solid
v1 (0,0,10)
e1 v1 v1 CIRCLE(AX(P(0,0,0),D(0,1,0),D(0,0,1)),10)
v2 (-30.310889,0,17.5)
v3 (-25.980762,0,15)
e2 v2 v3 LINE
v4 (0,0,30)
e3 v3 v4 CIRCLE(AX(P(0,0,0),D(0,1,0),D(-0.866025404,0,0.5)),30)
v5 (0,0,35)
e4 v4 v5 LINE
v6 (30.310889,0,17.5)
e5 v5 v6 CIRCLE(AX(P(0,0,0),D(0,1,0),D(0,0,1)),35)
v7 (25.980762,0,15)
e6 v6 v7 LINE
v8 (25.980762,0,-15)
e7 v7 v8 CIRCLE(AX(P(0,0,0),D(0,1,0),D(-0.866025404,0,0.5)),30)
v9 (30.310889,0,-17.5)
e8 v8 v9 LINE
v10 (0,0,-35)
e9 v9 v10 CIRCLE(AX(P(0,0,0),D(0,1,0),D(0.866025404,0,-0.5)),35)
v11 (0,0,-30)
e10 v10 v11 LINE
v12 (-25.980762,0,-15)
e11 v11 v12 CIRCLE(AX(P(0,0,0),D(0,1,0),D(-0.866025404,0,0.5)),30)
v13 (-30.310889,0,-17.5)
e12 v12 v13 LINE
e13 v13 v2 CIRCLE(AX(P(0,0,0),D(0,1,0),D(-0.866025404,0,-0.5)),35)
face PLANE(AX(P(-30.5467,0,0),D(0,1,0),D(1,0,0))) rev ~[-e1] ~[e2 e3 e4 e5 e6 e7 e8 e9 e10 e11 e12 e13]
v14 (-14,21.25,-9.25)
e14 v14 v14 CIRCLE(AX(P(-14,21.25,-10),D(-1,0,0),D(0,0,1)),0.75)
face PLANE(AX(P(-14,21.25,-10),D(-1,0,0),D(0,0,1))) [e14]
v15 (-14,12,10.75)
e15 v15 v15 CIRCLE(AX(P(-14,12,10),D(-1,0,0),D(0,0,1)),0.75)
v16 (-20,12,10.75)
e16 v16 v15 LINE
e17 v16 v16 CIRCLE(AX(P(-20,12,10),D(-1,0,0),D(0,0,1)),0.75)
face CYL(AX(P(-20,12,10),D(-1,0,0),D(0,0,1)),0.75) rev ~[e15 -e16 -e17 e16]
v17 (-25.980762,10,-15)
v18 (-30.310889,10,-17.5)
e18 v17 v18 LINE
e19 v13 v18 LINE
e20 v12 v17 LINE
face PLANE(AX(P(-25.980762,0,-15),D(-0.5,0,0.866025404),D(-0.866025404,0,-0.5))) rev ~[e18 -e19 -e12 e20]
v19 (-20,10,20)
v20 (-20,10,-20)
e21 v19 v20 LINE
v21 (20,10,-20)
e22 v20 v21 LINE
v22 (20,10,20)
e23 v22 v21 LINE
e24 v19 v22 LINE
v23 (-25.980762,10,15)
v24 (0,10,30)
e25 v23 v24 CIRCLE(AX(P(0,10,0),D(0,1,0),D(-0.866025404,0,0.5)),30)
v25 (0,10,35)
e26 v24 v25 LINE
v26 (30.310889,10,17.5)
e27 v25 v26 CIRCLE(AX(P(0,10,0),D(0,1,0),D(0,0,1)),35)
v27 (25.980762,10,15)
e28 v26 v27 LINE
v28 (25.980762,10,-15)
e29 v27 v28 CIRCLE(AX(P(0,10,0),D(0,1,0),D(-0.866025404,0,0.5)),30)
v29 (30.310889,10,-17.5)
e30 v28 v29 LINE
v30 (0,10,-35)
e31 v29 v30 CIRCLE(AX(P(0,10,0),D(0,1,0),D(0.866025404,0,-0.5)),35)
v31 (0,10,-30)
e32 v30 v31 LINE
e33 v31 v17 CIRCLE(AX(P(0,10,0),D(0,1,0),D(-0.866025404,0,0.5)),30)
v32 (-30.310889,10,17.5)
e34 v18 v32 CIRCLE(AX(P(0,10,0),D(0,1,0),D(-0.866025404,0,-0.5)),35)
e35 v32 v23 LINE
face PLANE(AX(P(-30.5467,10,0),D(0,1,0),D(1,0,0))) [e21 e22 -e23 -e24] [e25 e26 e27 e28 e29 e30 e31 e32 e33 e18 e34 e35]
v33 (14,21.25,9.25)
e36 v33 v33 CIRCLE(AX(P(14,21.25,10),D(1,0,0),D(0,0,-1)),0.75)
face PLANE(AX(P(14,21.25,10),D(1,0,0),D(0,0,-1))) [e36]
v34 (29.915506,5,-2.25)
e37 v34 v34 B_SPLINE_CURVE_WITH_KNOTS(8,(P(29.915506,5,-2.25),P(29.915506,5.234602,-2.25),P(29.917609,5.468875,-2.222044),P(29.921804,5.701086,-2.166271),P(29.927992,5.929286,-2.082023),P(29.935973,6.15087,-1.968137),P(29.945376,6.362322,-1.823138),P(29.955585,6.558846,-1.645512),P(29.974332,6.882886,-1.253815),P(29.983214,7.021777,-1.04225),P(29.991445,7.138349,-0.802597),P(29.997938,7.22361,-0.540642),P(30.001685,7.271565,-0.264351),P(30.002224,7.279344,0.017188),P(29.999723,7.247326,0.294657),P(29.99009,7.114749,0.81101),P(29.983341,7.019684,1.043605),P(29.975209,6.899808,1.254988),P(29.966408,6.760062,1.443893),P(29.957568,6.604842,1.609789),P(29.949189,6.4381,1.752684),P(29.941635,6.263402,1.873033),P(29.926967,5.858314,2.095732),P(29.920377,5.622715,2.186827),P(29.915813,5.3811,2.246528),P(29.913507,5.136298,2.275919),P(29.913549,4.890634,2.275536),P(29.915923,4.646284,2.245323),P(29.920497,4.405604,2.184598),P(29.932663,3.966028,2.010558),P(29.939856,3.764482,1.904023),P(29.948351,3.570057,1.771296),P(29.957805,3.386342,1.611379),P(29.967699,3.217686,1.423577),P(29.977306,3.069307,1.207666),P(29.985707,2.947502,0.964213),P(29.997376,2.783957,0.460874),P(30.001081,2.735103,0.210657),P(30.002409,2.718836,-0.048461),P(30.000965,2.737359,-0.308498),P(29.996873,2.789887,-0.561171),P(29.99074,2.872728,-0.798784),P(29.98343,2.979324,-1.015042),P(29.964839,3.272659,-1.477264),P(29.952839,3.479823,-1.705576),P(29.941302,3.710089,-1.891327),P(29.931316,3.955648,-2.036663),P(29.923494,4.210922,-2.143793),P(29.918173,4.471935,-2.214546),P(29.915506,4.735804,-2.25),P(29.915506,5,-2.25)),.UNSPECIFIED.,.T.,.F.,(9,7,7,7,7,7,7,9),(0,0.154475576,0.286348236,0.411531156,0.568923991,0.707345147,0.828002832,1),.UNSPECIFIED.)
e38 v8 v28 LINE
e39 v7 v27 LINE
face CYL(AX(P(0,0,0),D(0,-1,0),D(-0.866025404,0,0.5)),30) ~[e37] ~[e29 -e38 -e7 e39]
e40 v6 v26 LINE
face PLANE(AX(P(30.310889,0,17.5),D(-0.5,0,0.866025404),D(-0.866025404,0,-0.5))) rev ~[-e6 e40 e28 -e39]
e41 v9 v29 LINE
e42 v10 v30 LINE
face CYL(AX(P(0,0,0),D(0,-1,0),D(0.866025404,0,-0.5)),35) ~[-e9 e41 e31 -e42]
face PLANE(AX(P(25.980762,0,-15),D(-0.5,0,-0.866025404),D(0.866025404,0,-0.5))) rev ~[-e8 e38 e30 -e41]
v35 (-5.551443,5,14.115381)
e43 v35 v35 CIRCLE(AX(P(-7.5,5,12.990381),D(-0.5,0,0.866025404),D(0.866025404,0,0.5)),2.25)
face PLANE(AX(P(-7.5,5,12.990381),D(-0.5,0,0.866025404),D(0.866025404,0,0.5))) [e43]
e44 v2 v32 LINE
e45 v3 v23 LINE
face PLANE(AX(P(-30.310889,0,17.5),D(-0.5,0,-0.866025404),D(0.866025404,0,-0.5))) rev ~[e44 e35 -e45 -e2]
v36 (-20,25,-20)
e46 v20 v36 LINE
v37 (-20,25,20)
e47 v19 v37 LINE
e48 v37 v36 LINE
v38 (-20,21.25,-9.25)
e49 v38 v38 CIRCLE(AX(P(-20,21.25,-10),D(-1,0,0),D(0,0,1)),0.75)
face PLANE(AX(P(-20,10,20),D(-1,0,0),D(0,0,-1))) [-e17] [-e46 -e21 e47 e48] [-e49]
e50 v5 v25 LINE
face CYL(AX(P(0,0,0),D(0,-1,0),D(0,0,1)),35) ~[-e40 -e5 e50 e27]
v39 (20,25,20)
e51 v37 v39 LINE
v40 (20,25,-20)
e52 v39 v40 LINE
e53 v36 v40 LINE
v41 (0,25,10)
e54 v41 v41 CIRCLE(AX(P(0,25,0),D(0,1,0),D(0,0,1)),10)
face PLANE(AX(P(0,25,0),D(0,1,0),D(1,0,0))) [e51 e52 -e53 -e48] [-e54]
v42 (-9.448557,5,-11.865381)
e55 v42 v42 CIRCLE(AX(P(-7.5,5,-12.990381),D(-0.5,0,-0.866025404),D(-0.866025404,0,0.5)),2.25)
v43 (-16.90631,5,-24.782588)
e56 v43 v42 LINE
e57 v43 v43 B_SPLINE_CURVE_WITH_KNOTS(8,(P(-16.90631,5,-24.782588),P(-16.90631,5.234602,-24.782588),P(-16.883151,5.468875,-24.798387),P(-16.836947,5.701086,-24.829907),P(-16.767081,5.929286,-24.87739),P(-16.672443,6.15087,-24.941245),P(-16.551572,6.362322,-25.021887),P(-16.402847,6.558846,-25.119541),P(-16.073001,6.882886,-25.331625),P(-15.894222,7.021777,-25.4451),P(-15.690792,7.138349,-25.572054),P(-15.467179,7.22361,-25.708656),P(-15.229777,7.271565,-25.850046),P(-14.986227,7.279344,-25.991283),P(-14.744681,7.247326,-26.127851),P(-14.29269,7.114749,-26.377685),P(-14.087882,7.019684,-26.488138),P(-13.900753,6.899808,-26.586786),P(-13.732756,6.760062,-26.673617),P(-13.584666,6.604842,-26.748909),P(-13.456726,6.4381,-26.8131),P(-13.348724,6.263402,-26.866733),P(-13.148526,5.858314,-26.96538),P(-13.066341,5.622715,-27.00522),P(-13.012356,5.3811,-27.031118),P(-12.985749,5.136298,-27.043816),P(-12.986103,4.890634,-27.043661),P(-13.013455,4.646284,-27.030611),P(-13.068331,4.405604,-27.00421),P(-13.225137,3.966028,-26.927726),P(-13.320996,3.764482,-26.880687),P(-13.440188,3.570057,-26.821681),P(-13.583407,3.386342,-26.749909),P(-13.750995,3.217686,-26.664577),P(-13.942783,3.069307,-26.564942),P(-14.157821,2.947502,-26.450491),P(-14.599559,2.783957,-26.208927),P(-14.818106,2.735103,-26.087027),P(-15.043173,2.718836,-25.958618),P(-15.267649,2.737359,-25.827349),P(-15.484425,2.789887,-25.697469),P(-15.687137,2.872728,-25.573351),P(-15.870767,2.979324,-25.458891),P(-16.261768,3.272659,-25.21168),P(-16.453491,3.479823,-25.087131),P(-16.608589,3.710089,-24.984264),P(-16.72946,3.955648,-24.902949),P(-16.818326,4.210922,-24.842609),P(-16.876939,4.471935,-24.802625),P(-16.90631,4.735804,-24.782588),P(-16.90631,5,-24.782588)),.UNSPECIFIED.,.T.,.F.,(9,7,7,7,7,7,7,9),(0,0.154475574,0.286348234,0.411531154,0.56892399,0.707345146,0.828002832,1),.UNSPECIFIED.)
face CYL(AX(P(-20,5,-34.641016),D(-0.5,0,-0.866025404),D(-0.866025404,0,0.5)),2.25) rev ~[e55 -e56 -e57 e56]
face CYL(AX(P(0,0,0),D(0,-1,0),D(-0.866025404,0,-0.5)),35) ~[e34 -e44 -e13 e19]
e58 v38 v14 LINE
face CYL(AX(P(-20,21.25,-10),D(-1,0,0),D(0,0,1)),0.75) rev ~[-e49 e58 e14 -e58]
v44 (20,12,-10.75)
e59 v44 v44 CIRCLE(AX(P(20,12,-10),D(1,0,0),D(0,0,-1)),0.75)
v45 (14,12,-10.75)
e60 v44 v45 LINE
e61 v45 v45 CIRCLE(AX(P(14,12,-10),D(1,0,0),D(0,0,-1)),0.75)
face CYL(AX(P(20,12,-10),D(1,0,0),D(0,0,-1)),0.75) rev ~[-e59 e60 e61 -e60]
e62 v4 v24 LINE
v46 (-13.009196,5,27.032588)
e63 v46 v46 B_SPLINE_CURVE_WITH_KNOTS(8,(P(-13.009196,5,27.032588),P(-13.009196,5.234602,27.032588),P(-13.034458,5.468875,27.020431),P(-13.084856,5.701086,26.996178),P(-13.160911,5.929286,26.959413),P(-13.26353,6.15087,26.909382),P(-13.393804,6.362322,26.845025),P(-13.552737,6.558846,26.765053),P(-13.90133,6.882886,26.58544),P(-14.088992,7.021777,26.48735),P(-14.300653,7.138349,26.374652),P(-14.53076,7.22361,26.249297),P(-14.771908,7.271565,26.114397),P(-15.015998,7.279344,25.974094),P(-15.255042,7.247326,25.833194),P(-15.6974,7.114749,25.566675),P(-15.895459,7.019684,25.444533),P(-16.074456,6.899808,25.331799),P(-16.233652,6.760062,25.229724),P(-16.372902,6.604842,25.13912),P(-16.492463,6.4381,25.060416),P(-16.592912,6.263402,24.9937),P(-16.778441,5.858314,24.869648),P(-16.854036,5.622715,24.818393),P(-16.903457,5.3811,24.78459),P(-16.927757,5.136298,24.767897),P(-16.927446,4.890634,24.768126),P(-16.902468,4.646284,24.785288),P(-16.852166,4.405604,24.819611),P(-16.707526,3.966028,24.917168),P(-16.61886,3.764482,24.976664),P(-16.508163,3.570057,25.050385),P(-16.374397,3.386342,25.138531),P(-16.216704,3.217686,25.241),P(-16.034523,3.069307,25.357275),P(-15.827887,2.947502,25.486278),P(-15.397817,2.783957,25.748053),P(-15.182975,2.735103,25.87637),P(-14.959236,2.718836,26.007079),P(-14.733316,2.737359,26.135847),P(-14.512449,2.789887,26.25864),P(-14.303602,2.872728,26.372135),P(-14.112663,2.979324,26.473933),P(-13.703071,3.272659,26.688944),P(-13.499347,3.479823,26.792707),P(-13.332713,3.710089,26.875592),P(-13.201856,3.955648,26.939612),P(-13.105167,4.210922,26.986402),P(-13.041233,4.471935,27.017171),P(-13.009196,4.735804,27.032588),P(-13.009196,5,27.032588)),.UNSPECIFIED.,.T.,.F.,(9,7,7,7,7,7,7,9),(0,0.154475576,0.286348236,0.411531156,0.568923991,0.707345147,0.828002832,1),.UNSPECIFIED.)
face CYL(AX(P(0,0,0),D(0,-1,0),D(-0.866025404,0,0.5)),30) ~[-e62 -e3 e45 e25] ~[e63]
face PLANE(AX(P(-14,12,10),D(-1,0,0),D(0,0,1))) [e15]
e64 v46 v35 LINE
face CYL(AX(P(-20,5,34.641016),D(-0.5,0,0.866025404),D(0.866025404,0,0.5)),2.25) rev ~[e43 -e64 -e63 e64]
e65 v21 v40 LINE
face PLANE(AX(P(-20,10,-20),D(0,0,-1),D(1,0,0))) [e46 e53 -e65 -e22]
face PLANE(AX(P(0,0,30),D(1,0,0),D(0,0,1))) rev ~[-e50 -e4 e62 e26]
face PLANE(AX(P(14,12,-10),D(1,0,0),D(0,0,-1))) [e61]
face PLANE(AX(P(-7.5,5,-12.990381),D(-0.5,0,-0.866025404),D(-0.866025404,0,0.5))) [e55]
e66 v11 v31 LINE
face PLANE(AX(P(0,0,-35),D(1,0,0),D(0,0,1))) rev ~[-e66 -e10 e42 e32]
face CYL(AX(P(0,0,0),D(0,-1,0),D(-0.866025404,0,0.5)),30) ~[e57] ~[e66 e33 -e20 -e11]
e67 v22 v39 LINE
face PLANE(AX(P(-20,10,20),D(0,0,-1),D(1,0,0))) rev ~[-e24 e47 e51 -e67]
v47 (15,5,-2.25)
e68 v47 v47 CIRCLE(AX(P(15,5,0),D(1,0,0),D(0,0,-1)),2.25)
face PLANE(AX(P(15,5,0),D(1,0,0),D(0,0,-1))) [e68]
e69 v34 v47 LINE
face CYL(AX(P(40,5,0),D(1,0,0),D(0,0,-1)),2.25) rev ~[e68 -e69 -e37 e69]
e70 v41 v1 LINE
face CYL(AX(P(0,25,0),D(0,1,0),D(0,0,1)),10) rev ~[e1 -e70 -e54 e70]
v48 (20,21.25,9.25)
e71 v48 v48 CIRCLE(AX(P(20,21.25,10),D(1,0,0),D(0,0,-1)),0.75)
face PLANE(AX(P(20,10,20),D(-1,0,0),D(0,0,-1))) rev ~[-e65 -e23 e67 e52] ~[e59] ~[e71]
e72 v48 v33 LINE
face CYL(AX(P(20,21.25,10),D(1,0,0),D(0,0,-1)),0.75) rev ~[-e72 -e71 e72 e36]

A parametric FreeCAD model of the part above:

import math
import FreeCAD as App
import Part
import Sketcher
from FreeCAD import Vector
Q = App.Units.Quantity


def add_polygon(sketch, points):
    """Adds a closed chain of lines whose ends are joined by coincident constraints."""
    first, n = sketch.GeometryCount, len(points)
    for a, b in zip(points, points[1:] + points[:1]):
        sketch.addGeometry(Part.LineSegment(App.Vector(*a, 0), App.Vector(*b, 0)), False)
    for i in range(n):
        sketch.addConstraint(Sketcher.Constraint("Coincident", first + i, 2, first + (i + 1) % n, 1))

doc = App.newDocument("Part")
body = doc.addObject("PartDesign::Body", "Body")

sketch1 = body.newObject("Sketcher::SketchObject", "Sketch")
sketch1.AttachmentSupport = (doc.getObject("XZ_Plane"), [""])
sketch1.MapMode = "FlatFace"
sketch1.addGeometry([
    Part.LineSegment(Vector(-25.980762, -15, 0), Vector(-30.310889, -17.5, 0)),
    Part.ArcOfCircle(Part.Circle(Vector(0, 0, 0), Vector(0, 0, 1), 35), math.radians(150), math.radians(210)),
    Part.LineSegment(Vector(-30.310889, 17.5, 0), Vector(-25.980762, 15, 0)),
    Part.ArcOfCircle(Part.Circle(Vector(0, 0, 0), Vector(0, 0, 1), 30), math.radians(90), math.radians(150)),
    Part.LineSegment(Vector(0, 30, 0), Vector(0, 35, 0)),
    Part.ArcOfCircle(Part.Circle(Vector(0, 0, 0), Vector(0, 0, 1), 35), math.radians(30), math.radians(90)),
    Part.LineSegment(Vector(30.310889, 17.5, 0), Vector(25.980762, 15, 0)),
    Part.ArcOfCircle(Part.Circle(Vector(0, 0, 0), Vector(0, 0, 1), 30), math.radians(-30), math.radians(30)),
    Part.LineSegment(Vector(25.980762, -15, 0), Vector(30.310889, -17.5, 0)),
    Part.ArcOfCircle(Part.Circle(Vector(0, 0, 0), Vector(0, 0, 1), 35), math.radians(-90), math.radians(-30)),
    Part.LineSegment(Vector(0, -35, 0), Vector(0, -30, 0)),
    Part.ArcOfCircle(Part.Circle(Vector(0, 0, 0), Vector(0, 0, 1), 30), math.radians(-150), math.radians(-90)),
], False)
sketch1.addConstraint([
    Sketcher.Constraint("Coincident", 0, 2, 1, 2),
    Sketcher.Constraint("Coincident", 1, 1, 2, 1),
    Sketcher.Constraint("Coincident", 2, 2, 3, 2),
    Sketcher.Constraint("Coincident", 3, 1, 4, 1),
    Sketcher.Constraint("Coincident", 4, 2, 5, 2),
    Sketcher.Constraint("Coincident", 5, 1, 6, 1),
    Sketcher.Constraint("Coincident", 6, 2, 7, 2),
    Sketcher.Constraint("Coincident", 7, 1, 8, 1),
    Sketcher.Constraint("Coincident", 8, 2, 9, 2),
    Sketcher.Constraint("Coincident", 9, 1, 10, 1),
    Sketcher.Constraint("Coincident", 10, 2, 11, 2),
    Sketcher.Constraint("Coincident", 11, 1, 0, 1),
    Sketcher.Constraint("Vertical", 4),
    Sketcher.Constraint("Vertical", 10),
    Sketcher.Constraint("Coincident", 1, 3, -1, 1),
    Sketcher.Constraint("Coincident", 3, 3, -1, 1),
    Sketcher.Constraint("Coincident", 5, 3, -1, 1),
    Sketcher.Constraint("Coincident", 7, 3, -1, 1),
    Sketcher.Constraint("Coincident", 9, 3, -1, 1),
    Sketcher.Constraint("Coincident", 11, 3, -1, 1),
    Sketcher.Constraint("Equal", 1, 5),
    Sketcher.Constraint("Equal", 3, 7),
    Sketcher.Constraint("Equal", 5, 9),
    Sketcher.Constraint("Equal", 7, 11),
    Sketcher.Constraint("PointOnObject", 3, 1, -2),
    Sketcher.Constraint("PointOnObject", 9, 1, -2),
    Sketcher.Constraint("Parallel", 0, 6),
    Sketcher.Constraint("Parallel", 2, 8),
    Sketcher.Constraint("Horizontal", 1, 1, 5, 1),
    Sketcher.Constraint("Horizontal", 2, 2, 6, 2),
    Sketcher.Constraint("Horizontal", 0, 2, 8, 2),
    Sketcher.Constraint("Vertical", 0, 2, 1, 1),
    Sketcher.Constraint("Radius", 1, 35.0),
    Sketcher.Constraint("Radius", 3, 30.0),
    Sketcher.Constraint("Angle", 0, Q("-150 deg")),
    Sketcher.Constraint("DistanceY", -1, 1, 2, 2, 15.0),
])
pad1 = body.newObject("PartDesign::Pad", "Pad")
pad1.Profile = sketch1
pad1.Length = 10
pad1.Reversed = True

sketch2 = body.newObject("Sketcher::SketchObject", "Sketch001")
sketch2.AttachmentSupport = (doc.getObject("YZ_Plane"), [""])
sketch2.MapMode = "FlatFace"
sketch2.AttachmentOffset = App.Placement(Vector(0, 0, 40), App.Rotation())
sketch2.addGeometry(Part.Circle(Vector(5, 0, 0), Vector(0, 0, 1), 2.25), False)
sketch2.addConstraint([
    Sketcher.Constraint("PointOnObject", 0, 3, -1),
    Sketcher.Constraint("Diameter", 0, 4.5),
    Sketcher.Constraint("DistanceX", -1, 1, 0, 3, 5.0),
])
pocket1 = body.newObject("PartDesign::Pocket", "Pocket")
pocket1.Profile = sketch2
pocket1.Length = 25
doc.recompute()

polarpattern = body.newObject("PartDesign::PolarPattern", "PolarPattern")
polarpattern.Originals = [pocket1]
polarpattern.Axis = (doc.getObject("Y_Axis"), [""])
polarpattern.Angle = 360
polarpattern.Occurrences = 3
body.Tip = polarpattern

sketch3 = body.newObject("Sketcher::SketchObject", "Sketch002")
sketch3.AttachmentSupport = (doc.getObject("XZ_Plane"), [""])
sketch3.MapMode = "FlatFace"
sketch3.AttachmentOffset = App.Placement(Vector(0, 0, -10), App.Rotation())
add_polygon(sketch3, [(-20, -20), (-20, 20), (20, 20), (20, -20)])
sketch3.addConstraint([
    Sketcher.Constraint("Vertical", 0),
    Sketcher.Constraint("Horizontal", 1),
    Sketcher.Constraint("Vertical", 2),
    Sketcher.Constraint("Horizontal", 3),
    Sketcher.Constraint("Symmetric", 0, 2, 2, 2, -1, 1),
    Sketcher.Constraint("Equal", 3, 0),
    Sketcher.Constraint("DistanceX", 1, 1, 1, 2, 40.0),
])
pad2 = body.newObject("PartDesign::Pad", "Pad001")
pad2.Profile = sketch3
pad2.Length = 15
pad2.Reversed = True

sketch4 = body.newObject("Sketcher::SketchObject", "Sketch003")
sketch4.AttachmentSupport = (doc.getObject("XZ_Plane"), [""])
sketch4.MapMode = "FlatFace"
sketch4.AttachmentOffset = App.Placement(Vector(0, 0, -25), App.Rotation())
sketch4.addGeometry(Part.Circle(Vector(0, 0, 0), Vector(0, 0, 1), 10), False)
sketch4.addConstraint([
    Sketcher.Constraint("Coincident", 0, 3, -1, 1),
    Sketcher.Constraint("Diameter", 0, 20.0),
])
pocket2 = body.newObject("PartDesign::Pocket", "Pocket001")
pocket2.Profile = sketch4
pocket2.Length = 25
pocket2.Reversed = True

sketch5 = body.newObject("Sketcher::SketchObject", "Sketch004")
sketch5.AttachmentSupport = (doc.getObject("YZ_Plane"), [""])
sketch5.MapMode = "FlatFace"
sketch5.AttachmentOffset = App.Placement(Vector(0, 0, 20), App.Rotation())
sketch5.addGeometry([
    Part.Circle(Vector(21.25, 10, 0), Vector(0, 0, 1), 0.75),
    Part.Circle(Vector(12, -10, 0), Vector(0, 0, 1), 0.75),
], False)
sketch5.addConstraint([
    Sketcher.Constraint("Equal", 0, 1),
    Sketcher.Constraint("Diameter", 0, 1.5),
    Sketcher.Constraint("DistanceY", -1, 1, 0, 3, 10.0),
    Sketcher.Constraint("DistanceX", -1, 1, 1, 3, 12.0),
    Sketcher.Constraint("DistanceY", 1, 3, -1, 1, 10.0),
    Sketcher.Constraint("DistanceX", -1, 1, 0, 3, 21.25),
])
pocket3 = body.newObject("PartDesign::Pocket", "Pocket002")
pocket3.Profile = sketch5
pocket3.Length = 6
doc.recompute()

polarpattern2 = body.newObject("PartDesign::PolarPattern", "PolarPattern001")
polarpattern2.Originals = [pocket3]
polarpattern2.Axis = (doc.getObject("Y_Axis"), [""])
polarpattern2.Angle = 360
polarpattern2.Occurrences = 2
body.Tip = polarpattern2

doc.recompute()
